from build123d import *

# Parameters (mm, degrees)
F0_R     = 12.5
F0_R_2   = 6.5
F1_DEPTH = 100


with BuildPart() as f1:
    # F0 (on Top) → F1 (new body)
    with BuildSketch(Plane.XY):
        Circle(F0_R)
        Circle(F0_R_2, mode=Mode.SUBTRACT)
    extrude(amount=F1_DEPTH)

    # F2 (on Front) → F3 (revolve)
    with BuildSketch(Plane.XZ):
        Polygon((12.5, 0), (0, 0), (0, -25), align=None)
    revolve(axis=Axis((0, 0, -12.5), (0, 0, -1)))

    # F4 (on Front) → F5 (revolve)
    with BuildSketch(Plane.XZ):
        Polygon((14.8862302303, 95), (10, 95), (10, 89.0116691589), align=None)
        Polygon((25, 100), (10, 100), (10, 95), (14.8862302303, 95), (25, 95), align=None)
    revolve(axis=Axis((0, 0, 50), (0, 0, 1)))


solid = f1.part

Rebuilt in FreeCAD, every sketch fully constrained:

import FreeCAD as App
import Part
import Sketcher
from FreeCAD import Vector
Q = App.Units.Quantity

doc = App.newDocument("Part")
body = doc.addObject("PartDesign::Body", "Body")

# Sketch on XY plane
sketch1 = body.newObject("Sketcher::SketchObject", "Sketch")
sketch1.AttachmentSupport = (doc.getObject("XY_Plane"), [""])
sketch1.MapMode = "FlatFace"
sketch1.addGeometry([
    Part.Circle(Vector(0, 0, 0), Vector(0, 0, 1), 12),
    Part.Circle(Vector(0, 0, 0), Vector(0, 0, 1), 6),
], False)
sketch1.addConstraint([
    Sketcher.Constraint("Coincident", 0, 3, -1, 1),
    Sketcher.Constraint("Coincident", 1, 3, -1, 1),
    Sketcher.Constraint("Diameter", 0, Q("25 mm")),
    Sketcher.Constraint("Diameter", 1, Q("13 mm")),
])
pad1 = body.newObject("PartDesign::Pad", "Pad")
pad1.Profile = sketch1
pad1.Length = 100

# Sketch on XZ plane
sketch2 = body.newObject("Sketcher::SketchObject", "Sketch001")
sketch2.AttachmentSupport = (doc.getObject("XZ_Plane"), [""])
sketch2.MapMode = "FlatFace"
sketch2.addGeometry([
    Part.LineSegment(Vector(12, 0, 0), Vector(0, 0, 0)),
    Part.LineSegment(Vector(0, 0, 0), Vector(0, -25, 0)),
    Part.LineSegment(Vector(0, -25, 0), Vector(12, 0, 0)),
], False)
sketch2.addConstraint([
    Sketcher.Constraint("Coincident", 0, 2, 1, 1),
    Sketcher.Constraint("Coincident", 1, 2, 2, 1),
    Sketcher.Constraint("Coincident", 2, 2, 0, 1),
    Sketcher.Constraint("Horizontal", 0),
    Sketcher.Constraint("Vertical", 1),
    Sketcher.Constraint("Coincident", 0, 2, -1, 1),
    Sketcher.Constraint("DistanceY", 1, 2, 1, 1, Q("25 mm")),
    Sketcher.Constraint("DistanceX", 0, 2, 0, 1, Q("12.5 mm")),
])
revolution = body.newObject("PartDesign::Revolution", "Revolution")
revolution.Profile = sketch2
revolution.ReferenceAxis = (sketch2, ["V_Axis"])
revolution.Angle = 360

# Sketch on XZ plane
sketch3 = body.newObject("Sketcher::SketchObject", "Sketch002")
sketch3.AttachmentSupport = (doc.getObject("XZ_Plane"), [""])
sketch3.MapMode = "FlatFace"
sketch3.addGeometry([
    Part.LineSegment(Vector(10, 89, 0), Vector(15, 95, 0)),  # 0
    Part.LineSegment(Vector(15, 95, 0), Vector(25, 95, 0)),  # 1
    Part.LineSegment(Vector(25, 95, 0), Vector(25, 100, 0)),  # 2
    Part.LineSegment(Vector(25, 100, 0), Vector(10, 100, 0)),  # 3
    Part.LineSegment(Vector(10, 100, 0), Vector(10, 89, 0)),  # 4
], False)
sketch3.addConstraint([
    Sketcher.Constraint("Coincident", 0, 2, 1, 1),
    Sketcher.Constraint("Coincident", 1, 2, 2, 1),
    Sketcher.Constraint("Coincident", 2, 2, 3, 1),
    Sketcher.Constraint("Coincident", 3, 2, 4, 1),
    Sketcher.Constraint("Coincident", 4, 2, 0, 1),
    Sketcher.Constraint("Horizontal", 1),
    Sketcher.Constraint("Vertical", 2),
    Sketcher.Constraint("Horizontal", 3),
    Sketcher.Constraint("Vertical", 4),
    Sketcher.Constraint("DistanceX", 3, 2, 3, 1, Q("15 mm")),
    Sketcher.Constraint("DistanceY", 2, 1, 2, 2, Q("5 mm")),
    Sketcher.Constraint("DistanceY", -1, 1, 0, 2, Q("95 mm")),
    Sketcher.Constraint("DistanceX", -1, 1, 1, 2, Q("25 mm")),
    Sketcher.Constraint("DistanceX", 1, 1, 1, 2, Q("10.11377 mm")),
    Sketcher.Constraint("DistanceY", 4, 2, 4, 1, Q("10.988331 mm")),
])
revolution2 = body.newObject("PartDesign::Revolution", "Revolution001")
revolution2.Profile = sketch3
revolution2.ReferenceAxis = (sketch3, ["V_Axis"])
revolution2.Angle = 360

doc.recompute()
